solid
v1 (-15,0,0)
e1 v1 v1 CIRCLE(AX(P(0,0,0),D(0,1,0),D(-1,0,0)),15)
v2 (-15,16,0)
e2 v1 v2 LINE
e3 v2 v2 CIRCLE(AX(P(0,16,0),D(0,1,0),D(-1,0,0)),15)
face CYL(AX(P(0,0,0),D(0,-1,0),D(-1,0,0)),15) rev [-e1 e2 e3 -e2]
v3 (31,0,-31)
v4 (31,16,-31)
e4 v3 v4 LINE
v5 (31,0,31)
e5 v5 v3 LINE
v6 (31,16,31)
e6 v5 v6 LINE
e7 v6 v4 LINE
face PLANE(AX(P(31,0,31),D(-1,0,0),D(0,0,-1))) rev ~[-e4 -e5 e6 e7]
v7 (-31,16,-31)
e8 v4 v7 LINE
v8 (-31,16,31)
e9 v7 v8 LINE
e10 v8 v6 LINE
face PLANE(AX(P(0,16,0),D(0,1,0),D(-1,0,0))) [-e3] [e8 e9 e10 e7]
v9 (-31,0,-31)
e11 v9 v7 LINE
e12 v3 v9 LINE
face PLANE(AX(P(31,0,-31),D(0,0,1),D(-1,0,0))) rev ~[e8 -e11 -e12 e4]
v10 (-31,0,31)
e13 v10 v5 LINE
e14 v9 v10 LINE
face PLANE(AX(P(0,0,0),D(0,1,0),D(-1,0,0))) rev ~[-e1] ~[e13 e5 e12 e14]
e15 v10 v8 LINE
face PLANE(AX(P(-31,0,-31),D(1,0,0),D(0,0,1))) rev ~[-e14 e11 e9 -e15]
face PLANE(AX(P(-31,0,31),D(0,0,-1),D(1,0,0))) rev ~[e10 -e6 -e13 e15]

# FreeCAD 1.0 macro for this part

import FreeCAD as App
import Part
import Sketcher

V = App.Vector
Q = App.Units.Quantity

doc = App.newDocument("Part")
body = doc.addObject("PartDesign::Body", "Body")

sketch1 = doc.addObject("Sketcher::SketchObject", "Sketch")
body.addObject(sketch1)
sketch1.AttachmentSupport = (doc.XZ_Plane, [""])
sketch1.MapMode = "FlatFace"
sketch1.addGeometry(Part.LineSegment(V(-31, -31, 0), V(-31, 31, 0)), False)
sketch1.addGeometry(Part.LineSegment(V(-31, 31, 0), V(31, 31, 0)), False)
sketch1.addGeometry(Part.LineSegment(V(31, 31, 0), V(31, -31, 0)), False)
sketch1.addGeometry(Part.LineSegment(V(31, -31, 0), V(-31, -31, 0)), False)
sketch1.addGeometry(Part.Circle(V(0, 0, 0), V(0, 0, 1), 15), False)
sketch1.addConstraint(Sketcher.Constraint("Coincident", 0, 2, 1, 1))
sketch1.addConstraint(Sketcher.Constraint("Coincident", 1, 2, 2, 1))
sketch1.addConstraint(Sketcher.Constraint("Coincident", 2, 2, 3, 1))
sketch1.addConstraint(Sketcher.Constraint("Coincident", 3, 2, 0, 1))
sketch1.addConstraint(Sketcher.Constraint("Vertical", 0))
sketch1.addConstraint(Sketcher.Constraint("Horizontal", 1))
sketch1.addConstraint(Sketcher.Constraint("Vertical", 2))
sketch1.addConstraint(Sketcher.Constraint("Horizontal", 3))
sketch1.addConstraint(Sketcher.Constraint("Coincident", 4, 3, -1, 1))
sketch1.addConstraint(Sketcher.Constraint("Symmetric", 0, 2, 2, 2, -1, 1))
sketch1.addConstraint(Sketcher.Constraint("Equal", 3, 0))
sketch1.addConstraint(Sketcher.Constraint("Diameter", 4, Q("30 mm")))
sketch1.addConstraint(Sketcher.Constraint("DistanceX", 1, 1, 1, 2, Q("62 mm")))
pad1 = doc.addObject("PartDesign::Pad", "Pad")
body.addObject(pad1)
pad1.Profile = sketch1
pad1.Length = 16
pad1.Reversed = True

doc.recompute()
